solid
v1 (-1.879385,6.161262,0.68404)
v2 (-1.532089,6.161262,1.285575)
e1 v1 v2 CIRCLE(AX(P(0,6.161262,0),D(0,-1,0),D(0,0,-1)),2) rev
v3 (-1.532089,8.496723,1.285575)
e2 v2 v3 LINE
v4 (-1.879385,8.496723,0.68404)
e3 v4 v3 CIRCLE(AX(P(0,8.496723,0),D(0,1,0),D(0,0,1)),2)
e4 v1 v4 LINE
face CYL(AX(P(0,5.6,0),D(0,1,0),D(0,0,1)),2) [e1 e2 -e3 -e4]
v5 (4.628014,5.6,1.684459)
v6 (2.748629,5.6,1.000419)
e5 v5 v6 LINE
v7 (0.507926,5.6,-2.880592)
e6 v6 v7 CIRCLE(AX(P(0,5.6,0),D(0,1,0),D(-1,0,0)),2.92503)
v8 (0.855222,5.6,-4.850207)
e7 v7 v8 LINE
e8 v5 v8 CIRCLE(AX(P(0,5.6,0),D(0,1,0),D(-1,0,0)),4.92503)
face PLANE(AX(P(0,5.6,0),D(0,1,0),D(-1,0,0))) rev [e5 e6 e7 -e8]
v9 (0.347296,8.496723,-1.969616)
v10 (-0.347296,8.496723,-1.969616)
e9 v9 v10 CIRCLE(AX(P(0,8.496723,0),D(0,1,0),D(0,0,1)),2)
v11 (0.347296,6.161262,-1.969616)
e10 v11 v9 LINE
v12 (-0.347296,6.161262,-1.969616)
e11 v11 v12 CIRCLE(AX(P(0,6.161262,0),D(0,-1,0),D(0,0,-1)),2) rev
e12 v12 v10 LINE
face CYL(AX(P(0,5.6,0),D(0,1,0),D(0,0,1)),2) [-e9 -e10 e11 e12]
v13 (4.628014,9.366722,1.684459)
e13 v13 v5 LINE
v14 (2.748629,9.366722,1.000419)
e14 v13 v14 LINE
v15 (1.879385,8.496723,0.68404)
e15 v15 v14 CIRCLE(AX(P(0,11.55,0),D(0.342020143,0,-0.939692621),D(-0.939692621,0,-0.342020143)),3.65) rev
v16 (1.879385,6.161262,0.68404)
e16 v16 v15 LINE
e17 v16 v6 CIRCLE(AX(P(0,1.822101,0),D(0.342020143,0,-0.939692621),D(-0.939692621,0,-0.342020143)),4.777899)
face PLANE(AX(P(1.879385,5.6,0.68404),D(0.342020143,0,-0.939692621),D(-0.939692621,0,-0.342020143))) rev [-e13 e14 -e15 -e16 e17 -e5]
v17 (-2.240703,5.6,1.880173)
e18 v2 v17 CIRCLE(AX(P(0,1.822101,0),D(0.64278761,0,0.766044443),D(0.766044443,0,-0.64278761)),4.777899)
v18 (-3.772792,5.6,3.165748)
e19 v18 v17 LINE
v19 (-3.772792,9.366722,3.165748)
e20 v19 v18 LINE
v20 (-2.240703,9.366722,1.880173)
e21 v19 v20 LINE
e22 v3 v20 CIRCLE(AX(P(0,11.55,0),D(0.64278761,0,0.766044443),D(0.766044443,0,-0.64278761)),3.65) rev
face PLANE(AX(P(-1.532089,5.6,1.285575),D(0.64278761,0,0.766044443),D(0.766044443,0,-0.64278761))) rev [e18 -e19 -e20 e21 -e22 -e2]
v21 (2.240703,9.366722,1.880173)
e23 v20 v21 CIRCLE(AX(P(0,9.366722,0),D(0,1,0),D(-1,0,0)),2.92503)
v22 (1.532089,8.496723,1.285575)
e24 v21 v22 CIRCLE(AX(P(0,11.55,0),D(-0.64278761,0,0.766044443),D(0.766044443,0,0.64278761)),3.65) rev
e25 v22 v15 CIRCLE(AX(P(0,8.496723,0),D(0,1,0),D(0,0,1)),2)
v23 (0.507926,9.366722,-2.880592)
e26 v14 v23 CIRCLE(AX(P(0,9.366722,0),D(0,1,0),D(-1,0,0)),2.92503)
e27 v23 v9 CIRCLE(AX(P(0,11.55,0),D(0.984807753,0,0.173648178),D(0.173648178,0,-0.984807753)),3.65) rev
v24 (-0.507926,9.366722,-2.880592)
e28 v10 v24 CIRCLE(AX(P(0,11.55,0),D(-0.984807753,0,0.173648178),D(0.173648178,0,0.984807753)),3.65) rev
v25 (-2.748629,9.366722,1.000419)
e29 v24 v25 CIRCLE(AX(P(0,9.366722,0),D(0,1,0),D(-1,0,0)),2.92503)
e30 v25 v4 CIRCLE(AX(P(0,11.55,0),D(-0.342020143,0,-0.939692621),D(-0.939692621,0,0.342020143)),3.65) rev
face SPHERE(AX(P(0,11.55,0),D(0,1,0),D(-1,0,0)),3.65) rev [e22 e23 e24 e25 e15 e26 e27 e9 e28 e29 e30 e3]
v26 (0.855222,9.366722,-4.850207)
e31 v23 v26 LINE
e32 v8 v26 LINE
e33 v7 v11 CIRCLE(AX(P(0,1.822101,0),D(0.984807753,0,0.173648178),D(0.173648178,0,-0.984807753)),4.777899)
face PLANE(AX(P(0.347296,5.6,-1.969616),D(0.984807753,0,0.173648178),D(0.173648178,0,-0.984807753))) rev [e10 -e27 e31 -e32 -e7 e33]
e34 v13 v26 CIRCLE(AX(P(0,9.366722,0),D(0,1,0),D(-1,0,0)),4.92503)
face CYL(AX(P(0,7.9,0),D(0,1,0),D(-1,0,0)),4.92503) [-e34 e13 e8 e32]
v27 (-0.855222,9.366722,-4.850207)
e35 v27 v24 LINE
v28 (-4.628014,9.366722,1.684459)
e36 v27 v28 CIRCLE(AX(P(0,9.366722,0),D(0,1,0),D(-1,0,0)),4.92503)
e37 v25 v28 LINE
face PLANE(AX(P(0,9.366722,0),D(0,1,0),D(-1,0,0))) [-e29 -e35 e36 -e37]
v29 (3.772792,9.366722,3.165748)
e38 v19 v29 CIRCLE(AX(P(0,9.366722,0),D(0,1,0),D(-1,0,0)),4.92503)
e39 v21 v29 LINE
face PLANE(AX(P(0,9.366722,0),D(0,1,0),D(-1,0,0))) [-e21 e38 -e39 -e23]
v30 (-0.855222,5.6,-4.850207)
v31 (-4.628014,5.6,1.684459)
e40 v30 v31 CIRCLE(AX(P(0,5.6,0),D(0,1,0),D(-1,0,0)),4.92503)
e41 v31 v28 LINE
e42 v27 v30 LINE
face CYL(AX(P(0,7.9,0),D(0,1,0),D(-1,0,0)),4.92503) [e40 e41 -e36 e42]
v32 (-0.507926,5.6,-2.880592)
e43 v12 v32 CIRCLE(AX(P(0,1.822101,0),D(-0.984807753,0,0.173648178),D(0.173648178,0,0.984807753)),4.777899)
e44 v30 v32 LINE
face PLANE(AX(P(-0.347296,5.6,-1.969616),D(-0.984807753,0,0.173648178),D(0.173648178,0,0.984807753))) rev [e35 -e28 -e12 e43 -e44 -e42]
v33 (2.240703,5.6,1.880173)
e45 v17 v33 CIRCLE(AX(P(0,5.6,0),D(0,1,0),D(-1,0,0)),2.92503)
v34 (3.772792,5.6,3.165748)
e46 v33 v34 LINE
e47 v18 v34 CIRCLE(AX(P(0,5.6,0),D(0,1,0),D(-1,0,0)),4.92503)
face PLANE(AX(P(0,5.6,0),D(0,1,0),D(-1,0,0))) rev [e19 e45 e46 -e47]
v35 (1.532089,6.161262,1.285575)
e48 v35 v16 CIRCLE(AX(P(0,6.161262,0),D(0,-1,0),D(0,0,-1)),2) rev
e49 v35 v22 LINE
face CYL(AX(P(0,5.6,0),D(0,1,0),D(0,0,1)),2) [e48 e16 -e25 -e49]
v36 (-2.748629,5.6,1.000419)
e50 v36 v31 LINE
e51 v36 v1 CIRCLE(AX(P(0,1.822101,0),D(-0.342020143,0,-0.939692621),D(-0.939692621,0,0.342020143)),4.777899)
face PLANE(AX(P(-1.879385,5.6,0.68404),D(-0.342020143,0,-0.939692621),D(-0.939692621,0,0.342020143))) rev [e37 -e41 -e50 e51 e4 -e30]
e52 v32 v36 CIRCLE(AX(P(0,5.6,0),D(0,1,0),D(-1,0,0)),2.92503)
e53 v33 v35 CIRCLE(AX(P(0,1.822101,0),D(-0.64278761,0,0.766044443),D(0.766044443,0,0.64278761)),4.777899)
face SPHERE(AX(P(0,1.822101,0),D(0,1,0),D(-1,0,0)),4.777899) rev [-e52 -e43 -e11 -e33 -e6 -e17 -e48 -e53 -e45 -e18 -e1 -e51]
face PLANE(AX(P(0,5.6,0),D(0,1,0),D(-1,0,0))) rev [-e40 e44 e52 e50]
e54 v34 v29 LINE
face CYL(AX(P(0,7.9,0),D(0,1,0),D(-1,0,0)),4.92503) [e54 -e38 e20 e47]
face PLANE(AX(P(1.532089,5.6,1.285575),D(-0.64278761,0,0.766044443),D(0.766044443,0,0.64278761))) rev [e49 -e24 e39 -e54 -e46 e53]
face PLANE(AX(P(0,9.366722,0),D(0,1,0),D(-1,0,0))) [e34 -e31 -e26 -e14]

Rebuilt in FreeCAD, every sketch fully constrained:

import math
import FreeCAD as App
import Part
import Sketcher

V = App.Vector
Q = App.Units.Quantity

doc = App.newDocument("Part")
body = doc.addObject("PartDesign::Body", "Body")

sketch1 = body.newObject("Sketcher::SketchObject", "Sketch")
sketch1.AttachmentSupport = (doc.getObject("XY_Plane"), [""])
sketch1.MapMode = "FlatFace"
sketch1.addGeometry(Part.LineSegment(V(-4.9, 5.6, 0), V(-2.9, 5.6, 0)), False)
sketch1.addGeometry(Part.ArcOfCircle(Part.Circle(V(0, 1.8, 0), V(0, 0, 1), 4.8), math.radians(90), math.radians(128)), False)
sketch1.addGeometry(Part.LineSegment(V(0, 6.6, 0), V(0, 7.9, 0)), False)
sketch1.addGeometry(Part.ArcOfCircle(Part.Circle(V(0, 11.5, 0), V(0, 0, 1), 3.6), math.radians(-143), math.radians(-90)), False)
sketch1.addGeometry(Part.LineSegment(V(-2.9, 9.4, 0), V(-4.9, 9.4, 0)), False)
sketch1.addGeometry(Part.LineSegment(V(-4.9, 9.4, 0), V(-4.9, 5.6, 0)), False)
sketch1.addConstraint(Sketcher.Constraint("Coincident", 0, 2, 1, 2))
sketch1.addConstraint(Sketcher.Constraint("Coincident", 1, 1, 2, 1))
sketch1.addConstraint(Sketcher.Constraint("Coincident", 2, 2, 3, 2))
sketch1.addConstraint(Sketcher.Constraint("Coincident", 3, 1, 4, 1))
sketch1.addConstraint(Sketcher.Constraint("Coincident", 4, 2, 5, 1))
sketch1.addConstraint(Sketcher.Constraint("Coincident", 5, 2, 0, 1))
sketch1.addConstraint(Sketcher.Constraint("Horizontal", 0))
sketch1.addConstraint(Sketcher.Constraint("Vertical", 2))
sketch1.addConstraint(Sketcher.Constraint("Horizontal", 4))
sketch1.addConstraint(Sketcher.Constraint("Vertical", 5))
sketch1.addConstraint(Sketcher.Constraint("PointOnObject", 1, 3, -2))
sketch1.addConstraint(Sketcher.Constraint("PointOnObject", 3, 3, -2))
sketch1.addConstraint(Sketcher.Constraint("PointOnObject", 1, 1, -2))
sketch1.addConstraint(Sketcher.Constraint("Vertical", 0, 2, 3, 1))
sketch1.addConstraint(Sketcher.Constraint("DistanceX", 0, 1, 0, 2, 2.0))
sketch1.addConstraint(Sketcher.Constraint("Radius", 3, 3.65))
sketch1.addConstraint(Sketcher.Constraint("DistanceY", 2, 1, 2, 2, 1.3))
sketch1.addConstraint(Sketcher.Constraint("DistanceY", 0, 2, 1, 1, 1.0))
sketch1.addConstraint(Sketcher.Constraint("DistanceY", -1, 1, 0, 2, 5.6))
sketch1.addConstraint(Sketcher.Constraint("Radius", 1, 4.777899))
revolution = body.newObject("PartDesign::Revolution", "Revolution")
revolution.Profile = sketch1
revolution.ReferenceAxis = (sketch1, ["V_Axis"])
revolution.Angle = 360

sketch2 = body.newObject("Sketcher::SketchObject", "Sketch001")
sketch2.AttachmentSupport = (doc.getObject("XZ_Plane"), [""])
sketch2.MapMode = "FlatFace"
sketch2.AttachmentOffset = App.Placement(V(0, 0, -9.366722), App.Rotation())
sketch2.addGeometry(Part.LineSegment(V(-1.7, -9.8, 0), V(-0.3, -2, 0)), False)
sketch2.addGeometry(Part.ArcOfCircle(Part.Circle(V(0, 0, 0), V(0, 0, 1), 2), math.radians(-100), math.radians(-80)), False)
sketch2.addGeometry(Part.LineSegment(V(0.3, -2, 0), V(1.7, -9.8, 0)), False)
sketch2.addGeometry(Part.ArcOfCircle(Part.Circle(V(0, 0, 0), V(0, 0, 1), 10), math.radians(-100), math.radians(-80)), False)
sketch2.addGeometry(Part.LineSegment(V(9.4, 3.4, 0), V(1.9, 0.7, 0)), False)
sketch2.addGeometry(Part.ArcOfCircle(Part.Circle(V(0, 0, 0), V(0, 0, 1), 2), math.radians(20), math.radians(40)), False)
sketch2.addGeometry(Part.LineSegment(V(1.5, 1.3, 0), V(7.7, 6.4, 0)), False)
sketch2.addGeometry(Part.ArcOfCircle(Part.Circle(V(0, 0, 0), V(0, 0, 1), 10), math.radians(20), math.radians(40)), False)
sketch2.addGeometry(Part.LineSegment(V(-7.7, 6.4, 0), V(-1.5, 1.3, 0)), False)
sketch2.addGeometry(Part.ArcOfCircle(Part.Circle(V(0, 0, 0), V(0, 0, 1), 2), math.radians(140), math.radians(160)), False)
sketch2.addGeometry(Part.LineSegment(V(-1.9, 0.7, 0), V(-9.4, 3.4, 0)), False)
sketch2.addGeometry(Part.ArcOfCircle(Part.Circle(V(0, 0, 0), V(0, 0, 1), 10), math.radians(140), math.radians(160)), False)
sketch2.addConstraint(Sketcher.Constraint("Coincident", 0, 2, 1, 1))
sketch2.addConstraint(Sketcher.Constraint("Coincident", 1, 2, 2, 1))
sketch2.addConstraint(Sketcher.Constraint("Coincident", 2, 2, 3, 2))
sketch2.addConstraint(Sketcher.Constraint("Coincident", 3, 1, 0, 1))
sketch2.addConstraint(Sketcher.Constraint("Coincident", 4, 2, 5, 1))
sketch2.addConstraint(Sketcher.Constraint("Coincident", 5, 2, 6, 1))
sketch2.addConstraint(Sketcher.Constraint("Coincident", 6, 2, 7, 2))
sketch2.addConstraint(Sketcher.Constraint("Coincident", 7, 1, 4, 1))
sketch2.addConstraint(Sketcher.Constraint("Coincident", 8, 2, 9, 1))
sketch2.addConstraint(Sketcher.Constraint("Coincident", 9, 2, 10, 1))
sketch2.addConstraint(Sketcher.Constraint("Coincident", 10, 2, 11, 2))
sketch2.addConstraint(Sketcher.Constraint("Coincident", 11, 1, 8, 1))
sketch2.addConstraint(Sketcher.Constraint("Coincident", 1, 3, -1, 1))
sketch2.addConstraint(Sketcher.Constraint("Coincident", 3, 3, -1, 1))
sketch2.addConstraint(Sketcher.Constraint("Coincident", 5, 3, -1, 1))
sketch2.addConstraint(Sketcher.Constraint("Coincident", 7, 3, -1, 1))
sketch2.addConstraint(Sketcher.Constraint("Coincident", 9, 3, -1, 1))
sketch2.addConstraint(Sketcher.Constraint("Coincident", 11, 3, -1, 1))
sketch2.addConstraint(Sketcher.Constraint("Equal", 1, 5))
sketch2.addConstraint(Sketcher.Constraint("Equal", 3, 7))
sketch2.addConstraint(Sketcher.Constraint("Equal", 5, 9))
sketch2.addConstraint(Sketcher.Constraint("Equal", 7, 11))
sketch2.addConstraint(Sketcher.Constraint("Horizontal", 0, 2, 1, 2))
sketch2.addConstraint(Sketcher.Constraint("Horizontal", 2, 2, 3, 1))
sketch2.addConstraint(Sketcher.Constraint("Horizontal", 5, 2, 8, 2))
sketch2.addConstraint(Sketcher.Constraint("Horizontal", 4, 2, 9, 2))
sketch2.addConstraint(Sketcher.Constraint("Horizontal", 7, 1, 10, 2))
sketch2.addConstraint(Sketcher.Constraint("Horizontal", 6, 2, 11, 1))
sketch2.addConstraint(Sketcher.Constraint("Radius", 1, 2.0))
sketch2.addConstraint(Sketcher.Constraint("Radius", 3, 10.0))
sketch2.addConstraint(Sketcher.Constraint("Angle", 0, Q("80 deg")))
sketch2.addConstraint(Sketcher.Constraint("Angle", 4, Q("-160 deg")))
sketch2.addConstraint(Sketcher.Constraint("Angle", 6, Q("40 deg")))
sketch2.addConstraint(Sketcher.Constraint("DistanceY", -1, 1, 7, 1, 3.420201))
sketch2.addConstraint(Sketcher.Constraint("DistanceX", -1, 1, 2, 2, 1.736482))
sketch2.addConstraint(Sketcher.Constraint("DistanceX", -1, 1, 5, 2, 1.532089))
pocket1 = body.newObject("PartDesign::Pocket", "Pocket")
pocket1.Profile = sketch2
pocket1.Type = "ThroughAll"
pocket1.Reversed = True

doc.recompute()
